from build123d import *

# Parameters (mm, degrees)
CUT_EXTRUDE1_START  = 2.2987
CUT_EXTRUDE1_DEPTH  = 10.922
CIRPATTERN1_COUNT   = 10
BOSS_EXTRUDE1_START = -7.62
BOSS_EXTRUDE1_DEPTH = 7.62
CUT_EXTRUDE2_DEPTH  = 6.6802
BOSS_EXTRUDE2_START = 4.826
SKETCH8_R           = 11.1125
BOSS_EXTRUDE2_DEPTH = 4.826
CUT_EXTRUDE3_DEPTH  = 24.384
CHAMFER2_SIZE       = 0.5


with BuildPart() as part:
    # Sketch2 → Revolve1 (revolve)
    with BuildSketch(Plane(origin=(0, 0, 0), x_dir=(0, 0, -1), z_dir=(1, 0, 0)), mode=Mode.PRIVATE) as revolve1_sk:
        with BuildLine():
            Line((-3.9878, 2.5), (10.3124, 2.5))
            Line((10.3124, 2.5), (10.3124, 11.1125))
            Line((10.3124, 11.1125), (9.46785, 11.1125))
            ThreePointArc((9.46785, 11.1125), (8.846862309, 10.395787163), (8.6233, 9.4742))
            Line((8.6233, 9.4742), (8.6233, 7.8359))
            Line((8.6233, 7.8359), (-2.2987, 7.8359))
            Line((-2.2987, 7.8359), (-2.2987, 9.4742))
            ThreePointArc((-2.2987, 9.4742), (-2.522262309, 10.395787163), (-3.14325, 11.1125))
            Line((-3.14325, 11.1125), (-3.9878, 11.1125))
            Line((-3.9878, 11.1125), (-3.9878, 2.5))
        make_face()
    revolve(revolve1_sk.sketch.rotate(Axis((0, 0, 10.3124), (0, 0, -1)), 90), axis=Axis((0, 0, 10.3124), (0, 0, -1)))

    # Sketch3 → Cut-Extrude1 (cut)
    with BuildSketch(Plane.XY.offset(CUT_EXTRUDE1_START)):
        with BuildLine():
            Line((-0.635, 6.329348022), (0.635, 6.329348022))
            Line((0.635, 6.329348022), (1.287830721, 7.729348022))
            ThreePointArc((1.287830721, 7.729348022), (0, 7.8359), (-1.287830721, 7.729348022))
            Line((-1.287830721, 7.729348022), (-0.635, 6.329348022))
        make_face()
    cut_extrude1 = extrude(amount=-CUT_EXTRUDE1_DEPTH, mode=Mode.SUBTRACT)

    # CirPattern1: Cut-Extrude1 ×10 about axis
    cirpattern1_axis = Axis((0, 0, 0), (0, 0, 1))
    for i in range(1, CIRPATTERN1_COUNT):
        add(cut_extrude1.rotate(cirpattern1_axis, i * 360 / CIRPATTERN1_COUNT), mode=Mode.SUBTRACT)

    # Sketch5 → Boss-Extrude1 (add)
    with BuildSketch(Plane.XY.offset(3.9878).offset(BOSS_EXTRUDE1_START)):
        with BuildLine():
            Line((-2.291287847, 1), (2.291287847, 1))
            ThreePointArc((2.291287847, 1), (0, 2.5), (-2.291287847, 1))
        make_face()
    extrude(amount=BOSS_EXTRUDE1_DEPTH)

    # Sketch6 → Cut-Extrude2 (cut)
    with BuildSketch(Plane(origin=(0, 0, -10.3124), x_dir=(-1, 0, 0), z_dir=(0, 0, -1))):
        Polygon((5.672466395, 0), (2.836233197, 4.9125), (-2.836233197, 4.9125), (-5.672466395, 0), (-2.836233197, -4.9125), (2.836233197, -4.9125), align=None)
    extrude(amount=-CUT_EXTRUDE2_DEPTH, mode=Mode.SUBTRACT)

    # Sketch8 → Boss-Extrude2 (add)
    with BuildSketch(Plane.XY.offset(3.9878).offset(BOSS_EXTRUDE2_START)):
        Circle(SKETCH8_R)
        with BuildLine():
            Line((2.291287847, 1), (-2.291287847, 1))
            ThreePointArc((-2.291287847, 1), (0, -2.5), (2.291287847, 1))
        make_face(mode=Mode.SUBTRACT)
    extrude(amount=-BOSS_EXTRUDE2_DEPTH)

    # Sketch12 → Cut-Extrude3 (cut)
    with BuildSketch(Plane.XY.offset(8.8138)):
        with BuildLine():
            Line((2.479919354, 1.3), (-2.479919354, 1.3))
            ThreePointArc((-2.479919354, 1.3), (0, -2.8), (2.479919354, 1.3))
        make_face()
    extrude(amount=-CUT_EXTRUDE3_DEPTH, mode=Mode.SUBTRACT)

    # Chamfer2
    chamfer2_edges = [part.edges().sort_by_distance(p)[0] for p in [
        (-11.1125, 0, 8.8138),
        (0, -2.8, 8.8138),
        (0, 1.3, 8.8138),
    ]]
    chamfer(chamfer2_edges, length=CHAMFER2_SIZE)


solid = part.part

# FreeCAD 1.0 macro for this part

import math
import FreeCAD as App
import Part
import Sketcher

V = App.Vector
Q = App.Units.Quantity


def edges_at(feature, points):
    """Names of the edges that pass closest to the given points."""
    edges = feature.Shape.Edges
    near = lambda p: min(range(len(edges)), key=lambda i: edges[i].distToShape(Part.Vertex(*p))[0])
    return sorted({f"Edge{near(p) + 1}" for p in points})

doc = App.newDocument("Part")
body = doc.addObject("PartDesign::Body", "Body")

sketch1 = doc.addObject("Sketcher::SketchObject", "Sketch")
body.addObject(sketch1)
sketch1.AttachmentSupport = (doc.YZ_Plane, [""])
sketch1.MapMode = "FlatFace"
sketch1.addGeometry(Part.LineSegment(V(2.5, 4, 0), V(2.5, -10.3, 0)), False)
sketch1.addGeometry(Part.LineSegment(V(2.5, -10.3, 0), V(11.1, -10.3, 0)), False)
sketch1.addGeometry(Part.LineSegment(V(11.1, -10.3, 0), V(11.1, -9.5, 0)), False)
sketch1.addGeometry(Part.ArcOfCircle(Part.Circle(V(9.5, -10.6, 0), V(0, 0, 1), 2), math.radians(35), math.radians(90)), False)
sketch1.addGeometry(Part.LineSegment(V(9.5, -8.6, 0), V(7.8, -8.6, 0)), False)
sketch1.addGeometry(Part.LineSegment(V(7.8, -8.6, 0), V(7.8, 2.3, 0)), False)
sketch1.addGeometry(Part.LineSegment(V(7.8, 2.3, 0), V(9.5, 2.3, 0)), False)
sketch1.addGeometry(Part.ArcOfCircle(Part.Circle(V(9.5, 4.3, 0), V(0, 0, 1), 2), math.radians(-90), math.radians(-35)), False)
sketch1.addGeometry(Part.LineSegment(V(11.1, 3.1, 0), V(11.1, 4, 0)), False)
sketch1.addGeometry(Part.LineSegment(V(11.1, 4, 0), V(2.5, 4, 0)), False)
sketch1.addConstraint(Sketcher.Constraint("Coincident", 0, 2, 1, 1))
sketch1.addConstraint(Sketcher.Constraint("Coincident", 1, 2, 2, 1))
sketch1.addConstraint(Sketcher.Constraint("Coincident", 2, 2, 3, 1))
sketch1.addConstraint(Sketcher.Constraint("Tangent", 3, 2, 4, 1))
sketch1.addConstraint(Sketcher.Constraint("Coincident", 4, 2, 5, 1))
sketch1.addConstraint(Sketcher.Constraint("Coincident", 5, 2, 6, 1))
sketch1.addConstraint(Sketcher.Constraint("Tangent", 6, 2, 7, 1))
sketch1.addConstraint(Sketcher.Constraint("Coincident", 7, 2, 8, 1))
sketch1.addConstraint(Sketcher.Constraint("Coincident", 8, 2, 9, 1))
sketch1.addConstraint(Sketcher.Constraint("Coincident", 9, 2, 0, 1))
sketch1.addConstraint(Sketcher.Constraint("Vertical", 0))
sketch1.addConstraint(Sketcher.Constraint("Horizontal", 1))
sketch1.addConstraint(Sketcher.Constraint("Vertical", 2))
sketch1.addConstraint(Sketcher.Constraint("Horizontal", 4))
sketch1.addConstraint(Sketcher.Constraint("Vertical", 5))
sketch1.addConstraint(Sketcher.Constraint("Horizontal", 6))
sketch1.addConstraint(Sketcher.Constraint("Vertical", 8))
sketch1.addConstraint(Sketcher.Constraint("Horizontal", 9))
sketch1.addConstraint(Sketcher.Constraint("Equal", 3, 7))
sketch1.addConstraint(Sketcher.Constraint("Vertical", 3, 3, 7, 3))
sketch1.addConstraint(Sketcher.Constraint("Vertical", 2, 2, 7, 2))
sketch1.addConstraint(Sketcher.Constraint("Equal", 2, 8))
sketch1.addConstraint(Sketcher.Constraint("DistanceY", 5, 1, 5, 2, Q("0.43 in")))
sketch1.addConstraint(Sketcher.Constraint("DistanceY", 0, 2, 0, 1, Q("0.563 in")))
sketch1.addConstraint(Sketcher.Constraint("DistanceX", 4, 2, 4, 1, Q("0.0645 in")))
sketch1.addConstraint(Sketcher.Constraint("DistanceX", -1, 1, 3, 3, Q("0.373 in")))
sketch1.addConstraint(Sketcher.Constraint("DistanceY", 0, 2, -1, 1, Q("0.406 in")))
sketch1.addConstraint(Sketcher.Constraint("DistanceX", -1, 1, 1, 2, Q("0.4375 in")))
sketch1.addConstraint(Sketcher.Constraint("DistanceX", 1, 1, 1, 2, 8.6125))
sketch1.addConstraint(Sketcher.Constraint("Radius", 3, 2.011303))
revolution = doc.addObject("PartDesign::Revolution", "Revolution")
body.addObject(revolution)
revolution.Profile = sketch1
revolution.ReferenceAxis = (sketch1, ["V_Axis"])
revolution.Angle = 360

sketch2 = doc.addObject("Sketcher::SketchObject", "Sketch001")
body.addObject(sketch2)
sketch2.AttachmentSupport = (doc.XY_Plane, [""])
sketch2.MapMode = "FlatFace"
sketch2.AttachmentOffset = App.Placement(V(0, 0, 0.0905 * 25.4), App.Rotation())
sketch2.addGeometry(Part.LineSegment(V(-0.6, 6.3, 0), V(0.6, 6.3, 0)), False)
sketch2.addGeometry(Part.LineSegment(V(0.6, 6.3, 0), V(1.3, 7.7, 0)), False)
sketch2.addGeometry(Part.ArcOfCircle(Part.Circle(V(0, 0, 0), V(0, 0, 1), 7.8), math.radians(80.54), math.radians(99.46)), False)
sketch2.addGeometry(Part.LineSegment(V(-1.3, 7.7, 0), V(-0.6, 6.3, 0)), False)
sketch2.addConstraint(Sketcher.Constraint("Coincident", 0, 2, 1, 1))
sketch2.addConstraint(Sketcher.Constraint("Coincident", 1, 2, 2, 1))
sketch2.addConstraint(Sketcher.Constraint("Coincident", 2, 2, 3, 1))
sketch2.addConstraint(Sketcher.Constraint("Coincident", 3, 2, 0, 1))
sketch2.addConstraint(Sketcher.Constraint("Horizontal", 0))
sketch2.addConstraint(Sketcher.Constraint("Coincident", 2, 3, -1, 1))
sketch2.addConstraint(Sketcher.Constraint("Horizontal", 1, 2, 2, 2))
sketch2.addConstraint(Sketcher.Constraint("Equal", 1, 3))
sketch2.addConstraint(Sketcher.Constraint("Angle", 1, Q("65 deg")))
sketch2.addConstraint(Sketcher.Constraint("DistanceX", 0, 1, 0, 2, Q("0.05 in")))
sketch2.addConstraint(Sketcher.Constraint("Radius", 2, Q("0.3085 in")))
sketch2.addConstraint(Sketcher.Constraint("DistanceY", 0, 2, 1, 2, 1.4))
pocket1 = doc.addObject("PartDesign::Pocket", "Pocket")
body.addObject(pocket1)
pocket1.Profile = sketch2
pocket1.Length = Q("0.43 in")
doc.recompute()

polarpattern = doc.addObject("PartDesign::PolarPattern", "PolarPattern")
body.addObject(polarpattern)
polarpattern.Originals = [pocket1]
polarpattern.Axis = (doc.Z_Axis, [""])
polarpattern.Angle = 360
polarpattern.Occurrences = 10
body.Tip = polarpattern

sketch3 = doc.addObject("Sketcher::SketchObject", "Sketch002")
body.addObject(sketch3)
sketch3.AttachmentSupport = (doc.XY_Plane, [""])
sketch3.MapMode = "FlatFace"
sketch3.AttachmentOffset = App.Placement(V(0, 0, -0.143 * 25.4), App.Rotation())
sketch3.addGeometry(Part.LineSegment(V(-2.3, 1, 0), V(2.3, 1, 0)), False)
sketch3.addGeometry(Part.ArcOfCircle(Part.Circle(V(0, 0, 0), V(0, 0, 1), 2.5), math.radians(24), math.radians(156)), False)
sketch3.addConstraint(Sketcher.Constraint("Coincident", 0, 1, 1, 2))
sketch3.addConstraint(Sketcher.Constraint("Coincident", 1, 1, 0, 2))
sketch3.addConstraint(Sketcher.Constraint("Horizontal", 0))
sketch3.addConstraint(Sketcher.Constraint("Coincident", 1, 3, -1, 1))
sketch3.addConstraint(Sketcher.Constraint("Radius", 1, 2.5))
sketch3.addConstraint(Sketcher.Constraint("DistanceY", -1, 1, 0, 1, 1.0))
pad1 = doc.addObject("PartDesign::Pad", "Pad")
body.addObject(pad1)
pad1.Profile = sketch3
pad1.Length = Q("0.3 in")

sketch4 = doc.addObject("Sketcher::SketchObject", "Sketch003")
body.addObject(sketch4)
sketch4.AttachmentSupport = (doc.XY_Plane, [""])
sketch4.MapMode = "FlatFace"
sketch4.AttachmentOffset = App.Placement(V(0, 0, -0.406 * 25.4), App.Rotation())
sketch4.addGeometry(Part.LineSegment(V(-6, 0, 0), V(-3, 5, 0)), False)
sketch4.addGeometry(Part.LineSegment(V(-3, 5, 0), V(3, 5, 0)), False)
sketch4.addGeometry(Part.LineSegment(V(3, 5, 0), V(6, 0, 0)), False)
sketch4.addGeometry(Part.LineSegment(V(6, 0, 0), V(3, -5, 0)), False)
sketch4.addGeometry(Part.LineSegment(V(3, -5, 0), V(-3, -5, 0)), False)
sketch4.addGeometry(Part.LineSegment(V(-3, -5, 0), V(-6, 0, 0)), False)
sketch4.addConstraint(Sketcher.Constraint("Coincident", 0, 2, 1, 1))
sketch4.addConstraint(Sketcher.Constraint("Coincident", 1, 2, 2, 1))
sketch4.addConstraint(Sketcher.Constraint("Coincident", 2, 2, 3, 1))
sketch4.addConstraint(Sketcher.Constraint("Coincident", 3, 2, 4, 1))
sketch4.addConstraint(Sketcher.Constraint("Coincident", 4, 2, 5, 1))
sketch4.addConstraint(Sketcher.Constraint("Coincident", 5, 2, 0, 1))
sketch4.addConstraint(Sketcher.Constraint("Horizontal", 1))
sketch4.addConstraint(Sketcher.Constraint("Horizontal", 4))
sketch4.addConstraint(Sketcher.Constraint("Symmetric", 0, 2, 3, 2, -1, 1))
sketch4.addConstraint(Sketcher.Constraint("Symmetric", 2, 2, 5, 2, -1, 1))
sketch4.addConstraint(Sketcher.Constraint("PointOnObject", 2, 2, -1))
sketch4.addConstraint(Sketcher.Constraint("Parallel", 2, 5))
sketch4.addConstraint(Sketcher.Constraint("Vertical", 1, 2, 3, 2))
sketch4.addConstraint(Sketcher.Constraint("Angle", 0, Q("60 deg")))
sketch4.addConstraint(Sketcher.Constraint("DistanceY", -1, 1, 0, 2, 4.9125))
sketch4.addConstraint(Sketcher.Constraint("DistanceX", 0, 2, 2, 2, 8.5087))
pocket2 = doc.addObject("PartDesign::Pocket", "Pocket001")
body.addObject(pocket2)
pocket2.Profile = sketch4
pocket2.Length = Q("0.263 in")
pocket2.Reversed = True

sketch5 = doc.addObject("Sketcher::SketchObject", "Sketch004")
body.addObject(sketch5)
sketch5.AttachmentSupport = (doc.XY_Plane, [""])
sketch5.MapMode = "FlatFace"
sketch5.AttachmentOffset = App.Placement(V(0, 0, 0.347 * 25.4), App.Rotation())
sketch5.addGeometry(Part.Circle(V(0, 0, 0), V(0, 0, 1), 11.1), False)
sketch5.addGeometry(Part.LineSegment(V(-2.3, 1, 0), V(2.3, 1, 0)), False)
sketch5.addGeometry(Part.ArcOfCircle(Part.Circle(V(0, 0, 0), V(0, 0, 1), 2.5), math.radians(156), math.radians(384)), False)
sketch5.addConstraint(Sketcher.Constraint("Coincident", 1, 1, 2, 1))
sketch5.addConstraint(Sketcher.Constraint("Coincident", 2, 2, 1, 2))
sketch5.addConstraint(Sketcher.Constraint("Horizontal", 1))
sketch5.addConstraint(Sketcher.Constraint("Coincident", 0, 3, -1, 1))
sketch5.addConstraint(Sketcher.Constraint("Coincident", 2, 3, -1, 1))
sketch5.addConstraint(Sketcher.Constraint("Diameter", 0, Q("0.875 in")))
sketch5.addConstraint(Sketcher.Constraint("Radius", 2, 2.5))
sketch5.addConstraint(Sketcher.Constraint("DistanceY", -1, 1, 1, 1, 1.0))
pad2 = doc.addObject("PartDesign::Pad", "Pad001")
body.addObject(pad2)
pad2.Profile = sketch5
pad2.Length = Q("0.19 in")
pad2.Reversed = True

sketch6 = doc.addObject("Sketcher::SketchObject", "Sketch005")
body.addObject(sketch6)
sketch6.AttachmentSupport = (doc.XY_Plane, [""])
sketch6.MapMode = "FlatFace"
sketch6.AttachmentOffset = App.Placement(V(0, 0, 0.347 * 25.4), App.Rotation())
sketch6.addGeometry(Part.LineSegment(V(2.5, 1.3, 0), V(-2.5, 1.3, 0)), False)
sketch6.addGeometry(Part.ArcOfCircle(Part.Circle(V(0, 0, 0), V(0, 0, 1), 2.8), math.radians(152), math.radians(388)), False)
sketch6.addConstraint(Sketcher.Constraint("Coincident", 0, 1, 1, 2))
sketch6.addConstraint(Sketcher.Constraint("Coincident", 1, 1, 0, 2))
sketch6.addConstraint(Sketcher.Constraint("Horizontal", 0))
sketch6.addConstraint(Sketcher.Constraint("Coincident", 1, 3, -1, 1))
sketch6.addConstraint(Sketcher.Constraint("Radius", 1, 2.8))
sketch6.addConstraint(Sketcher.Constraint("DistanceX", 0, 2, 0, 1, 4.959839))
pocket3 = doc.addObject("PartDesign::Pocket", "Pocket002")
body.addObject(pocket3)
pocket3.Profile = sketch6
pocket3.Length = Q("0.96 in")
doc.recompute()

chamfer = doc.addObject("PartDesign::Chamfer", "Chamfer")
body.addObject(chamfer)
chamfer.Base = (pocket3, edges_at(pocket3, [(-11.113, 0, 8.814), (0, -2.8, 8.814), (0, 1.3, 8.814)]))
chamfer.Size = 0.5

doc.recompute()
